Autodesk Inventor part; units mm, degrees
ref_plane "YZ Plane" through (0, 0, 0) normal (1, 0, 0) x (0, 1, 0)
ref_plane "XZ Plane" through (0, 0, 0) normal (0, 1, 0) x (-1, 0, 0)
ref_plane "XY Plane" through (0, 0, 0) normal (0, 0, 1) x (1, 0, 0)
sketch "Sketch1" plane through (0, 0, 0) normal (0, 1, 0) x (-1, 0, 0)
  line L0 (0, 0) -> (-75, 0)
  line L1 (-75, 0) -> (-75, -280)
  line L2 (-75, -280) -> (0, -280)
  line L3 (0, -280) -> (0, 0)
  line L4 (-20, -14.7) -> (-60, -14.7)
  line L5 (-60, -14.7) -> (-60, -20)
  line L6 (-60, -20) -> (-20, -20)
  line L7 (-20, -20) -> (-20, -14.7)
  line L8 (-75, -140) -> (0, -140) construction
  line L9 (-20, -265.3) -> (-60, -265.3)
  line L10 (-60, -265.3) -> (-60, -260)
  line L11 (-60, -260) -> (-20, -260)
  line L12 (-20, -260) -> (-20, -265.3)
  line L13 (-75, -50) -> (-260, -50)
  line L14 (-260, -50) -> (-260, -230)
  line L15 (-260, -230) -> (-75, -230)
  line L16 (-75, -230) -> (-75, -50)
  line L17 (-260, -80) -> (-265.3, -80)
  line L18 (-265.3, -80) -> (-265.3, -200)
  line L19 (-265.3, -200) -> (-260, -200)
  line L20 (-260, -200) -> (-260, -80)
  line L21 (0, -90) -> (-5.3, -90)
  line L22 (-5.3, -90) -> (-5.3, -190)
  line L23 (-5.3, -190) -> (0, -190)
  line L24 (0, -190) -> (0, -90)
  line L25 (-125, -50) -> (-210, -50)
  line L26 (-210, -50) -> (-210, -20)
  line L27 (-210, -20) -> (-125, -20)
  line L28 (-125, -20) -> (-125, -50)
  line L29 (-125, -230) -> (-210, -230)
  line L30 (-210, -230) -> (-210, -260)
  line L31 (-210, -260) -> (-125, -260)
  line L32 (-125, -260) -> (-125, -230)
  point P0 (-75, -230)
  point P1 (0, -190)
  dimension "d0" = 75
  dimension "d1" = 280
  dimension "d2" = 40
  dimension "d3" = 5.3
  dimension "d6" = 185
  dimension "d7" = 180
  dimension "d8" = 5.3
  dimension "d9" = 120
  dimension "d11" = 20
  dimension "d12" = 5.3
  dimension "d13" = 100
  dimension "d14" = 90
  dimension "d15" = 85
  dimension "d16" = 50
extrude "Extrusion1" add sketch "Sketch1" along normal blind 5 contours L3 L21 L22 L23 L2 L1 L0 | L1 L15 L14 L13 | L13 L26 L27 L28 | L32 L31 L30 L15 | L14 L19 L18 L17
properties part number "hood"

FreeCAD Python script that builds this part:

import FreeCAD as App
import Part
import Sketcher
from FreeCAD import Vector


def add_polygon(sketch, points):
    """Adds a closed chain of lines whose ends are joined by coincident constraints."""
    first, n = sketch.GeometryCount, len(points)
    for a, b in zip(points, points[1:] + points[:1]):
        sketch.addGeometry(Part.LineSegment(App.Vector(*a, 0), App.Vector(*b, 0)), False)
    for i in range(n):
        sketch.addConstraint(Sketcher.Constraint("Coincident", first + i, 2, first + (i + 1) % n, 1))

doc = App.newDocument("Part")
params = doc.addObject("Spreadsheet::Sheet", "Params")
for row, (alias, value) in enumerate([
    ("sketch1_width", "75 mm"),
    ("sketch1_width2", "50 mm"),
    ("sketch1_width3", "85 mm"),
    ("sketch1_width4", "40 mm"),
    ("sketch1_height", "90 mm"),
    ("pad1_length", "5 mm"),
], start=1):
    params.set(f"A{row}", alias)
    params.set(f"B{row}", "=" + value)
    params.setAlias(f"B{row}", alias)

body = doc.addObject("PartDesign::Body", "Body")

# Sketch on XZ plane
sketch1 = body.newObject("Sketcher::SketchObject", "Sketch")
sketch1.AttachmentSupport = (doc.getObject("XZ_Plane"), [""])
sketch1.MapMode = "FlatFace"
add_polygon(sketch1, [(0, -90), (0, 0), (75, 0), (75, -50), (125, -50), (125, -20), (210, -20), (210, -50), (260, -50), (260, -80), (265, -80), (265, -200), (260, -200), (260, -230), (210, -230), (210, -260), (125, -260), (125, -230), (75, -230), (75, -280), (0, -280), (0, -190), (5, -190), (5, -90)])  # lines 0-23
add_polygon(sketch1, [(20, -260), (20, -265), (60, -265), (60, -260)])  # lines 24-27
add_polygon(sketch1, [(60, -15), (20, -15), (20, -20), (60, -20)])  # lines 28-31
sketch1.addConstraint(Sketcher.Constraint("Vertical", 0))
sketch1.addConstraint(Sketcher.Constraint("Horizontal", 1))
sketch1.addConstraint(Sketcher.Constraint("Vertical", 2))
sketch1.addConstraint(Sketcher.Constraint("Horizontal", 3))
sketch1.addConstraint(Sketcher.Constraint("Vertical", 4))
sketch1.addConstraint(Sketcher.Constraint("Horizontal", 5))
sketch1.addConstraint(Sketcher.Constraint("Vertical", 6))
sketch1.addConstraint(Sketcher.Constraint("Horizontal", 7))
sketch1.addConstraint(Sketcher.Constraint("Vertical", 8))
sketch1.addConstraint(Sketcher.Constraint("Horizontal", 9))
sketch1.addConstraint(Sketcher.Constraint("Vertical", 10))
sketch1.addConstraint(Sketcher.Constraint("Horizontal", 11))
sketch1.addConstraint(Sketcher.Constraint("Vertical", 12))
sketch1.addConstraint(Sketcher.Constraint("Horizontal", 13))
sketch1.addConstraint(Sketcher.Constraint("Vertical", 14))
sketch1.addConstraint(Sketcher.Constraint("Horizontal", 15))
sketch1.addConstraint(Sketcher.Constraint("Vertical", 16))
sketch1.addConstraint(Sketcher.Constraint("Horizontal", 17))
sketch1.addConstraint(Sketcher.Constraint("Vertical", 18))
sketch1.addConstraint(Sketcher.Constraint("Horizontal", 19))
sketch1.addConstraint(Sketcher.Constraint("Vertical", 20))
sketch1.addConstraint(Sketcher.Constraint("Horizontal", 21))
sketch1.addConstraint(Sketcher.Constraint("Vertical", 22))
sketch1.addConstraint(Sketcher.Constraint("Horizontal", 23))
sketch1.addConstraint(Sketcher.Constraint("Vertical", 24))
sketch1.addConstraint(Sketcher.Constraint("Horizontal", 25))
sketch1.addConstraint(Sketcher.Constraint("Vertical", 26))
sketch1.addConstraint(Sketcher.Constraint("Horizontal", 27))
sketch1.addConstraint(Sketcher.Constraint("Horizontal", 28))
sketch1.addConstraint(Sketcher.Constraint("Vertical", 29))
sketch1.addConstraint(Sketcher.Constraint("Horizontal", 30))
sketch1.addConstraint(Sketcher.Constraint("Vertical", 31))
sketch1.addConstraint(Sketcher.Constraint("Coincident", 0, 2, -1, 1))
sketch1.addConstraint(Sketcher.Constraint("PointOnObject", 19, 2, -2))
sketch1.addConstraint(Sketcher.Constraint("Horizontal", 3, 2, 6, 2))
sketch1.addConstraint(Sketcher.Constraint("Horizontal", 13, 2, 16, 2))
sketch1.addConstraint(Sketcher.Constraint("Horizontal", 15, 2, 26, 2))
sketch1.addConstraint(Sketcher.Constraint("Horizontal", 5, 2, 29, 2))
sketch1.addConstraint(Sketcher.Constraint("Vertical", 8, 2, 11, 2))
sketch1.addConstraint(Sketcher.Constraint("Vertical", 6, 2, 13, 2))
sketch1.addConstraint(Sketcher.Constraint("Vertical", 4, 2, 15, 2))
sketch1.addConstraint(Sketcher.Constraint("Vertical", 2, 2, 17, 2))
sketch1.addConstraint(Sketcher.Constraint("Vertical", 27, 2, 28, 2))
sketch1.addConstraint(Sketcher.Constraint("Vertical", 26, 2, 30, 2))
sketch1.addConstraint(Sketcher.Constraint("Equal", 3, 7))
sketch1.addConstraint(Sketcher.Constraint("Equal", 11, 21))
sketch1.addConstraint(Sketcher.Constraint("Equal", 17, 2))
sketch1.addConstraint(Sketcher.Constraint("Equal", 6, 8))
sketch1.addConstraint(Sketcher.Constraint("Equal", 8, 12))
sketch1.addConstraint(Sketcher.Constraint("Equal", 12, 14))
sketch1.addConstraint(Sketcher.Constraint("Equal", 2, 18))
sketch1.addConstraint(Sketcher.Constraint("Equal", 0, 20))
sketch1.addConstraint(Sketcher.Constraint("Equal", 23, 24))
sketch1.addConstraint(Sketcher.Constraint("Equal", 26, 29))
sketch1.addConstraint(Sketcher.Constraint("DistanceX", 1, 1, 1, 2, 75.0))
sketch1.addConstraint(Sketcher.Constraint("DistanceX", 3, 1, 3, 2, 50.0))
sketch1.addConstraint(Sketcher.Constraint("DistanceX", 5, 1, 5, 2, 85.0))
sketch1.addConstraint(Sketcher.Constraint("DistanceX", 25, 1, 25, 2, 40.0))
sketch1.addConstraint(Sketcher.Constraint("DistanceY", 0, 1, 0, 2, 90.0))
sketch1.addConstraint(Sketcher.Constraint("DistanceY", 10, 2, 10, 1, 120.0))
sketch1.addConstraint(Sketcher.Constraint("DistanceY", 22, 1, 22, 2, 100.0))
sketch1.addConstraint(Sketcher.Constraint("DistanceX", 9, 1, 9, 2, 5.3))
sketch1.addConstraint(Sketcher.Constraint("DistanceX", -1, 1, 24, 2, 20.0))
sketch1.setExpression("Constraints[86]", "Params.sketch1_width")
sketch1.setExpression("Constraints[87]", "Params.sketch1_width2")
sketch1.setExpression("Constraints[88]", "Params.sketch1_width3")
sketch1.setExpression("Constraints[89]", "Params.sketch1_width4")
sketch1.setExpression("Constraints[90]", "Params.sketch1_height")
pad1 = body.newObject("PartDesign::Pad", "Pad")
pad1.Profile = sketch1
pad1.setExpression("Length", "Params.pad1_length")
pad1.Reversed = True

doc.recompute()
